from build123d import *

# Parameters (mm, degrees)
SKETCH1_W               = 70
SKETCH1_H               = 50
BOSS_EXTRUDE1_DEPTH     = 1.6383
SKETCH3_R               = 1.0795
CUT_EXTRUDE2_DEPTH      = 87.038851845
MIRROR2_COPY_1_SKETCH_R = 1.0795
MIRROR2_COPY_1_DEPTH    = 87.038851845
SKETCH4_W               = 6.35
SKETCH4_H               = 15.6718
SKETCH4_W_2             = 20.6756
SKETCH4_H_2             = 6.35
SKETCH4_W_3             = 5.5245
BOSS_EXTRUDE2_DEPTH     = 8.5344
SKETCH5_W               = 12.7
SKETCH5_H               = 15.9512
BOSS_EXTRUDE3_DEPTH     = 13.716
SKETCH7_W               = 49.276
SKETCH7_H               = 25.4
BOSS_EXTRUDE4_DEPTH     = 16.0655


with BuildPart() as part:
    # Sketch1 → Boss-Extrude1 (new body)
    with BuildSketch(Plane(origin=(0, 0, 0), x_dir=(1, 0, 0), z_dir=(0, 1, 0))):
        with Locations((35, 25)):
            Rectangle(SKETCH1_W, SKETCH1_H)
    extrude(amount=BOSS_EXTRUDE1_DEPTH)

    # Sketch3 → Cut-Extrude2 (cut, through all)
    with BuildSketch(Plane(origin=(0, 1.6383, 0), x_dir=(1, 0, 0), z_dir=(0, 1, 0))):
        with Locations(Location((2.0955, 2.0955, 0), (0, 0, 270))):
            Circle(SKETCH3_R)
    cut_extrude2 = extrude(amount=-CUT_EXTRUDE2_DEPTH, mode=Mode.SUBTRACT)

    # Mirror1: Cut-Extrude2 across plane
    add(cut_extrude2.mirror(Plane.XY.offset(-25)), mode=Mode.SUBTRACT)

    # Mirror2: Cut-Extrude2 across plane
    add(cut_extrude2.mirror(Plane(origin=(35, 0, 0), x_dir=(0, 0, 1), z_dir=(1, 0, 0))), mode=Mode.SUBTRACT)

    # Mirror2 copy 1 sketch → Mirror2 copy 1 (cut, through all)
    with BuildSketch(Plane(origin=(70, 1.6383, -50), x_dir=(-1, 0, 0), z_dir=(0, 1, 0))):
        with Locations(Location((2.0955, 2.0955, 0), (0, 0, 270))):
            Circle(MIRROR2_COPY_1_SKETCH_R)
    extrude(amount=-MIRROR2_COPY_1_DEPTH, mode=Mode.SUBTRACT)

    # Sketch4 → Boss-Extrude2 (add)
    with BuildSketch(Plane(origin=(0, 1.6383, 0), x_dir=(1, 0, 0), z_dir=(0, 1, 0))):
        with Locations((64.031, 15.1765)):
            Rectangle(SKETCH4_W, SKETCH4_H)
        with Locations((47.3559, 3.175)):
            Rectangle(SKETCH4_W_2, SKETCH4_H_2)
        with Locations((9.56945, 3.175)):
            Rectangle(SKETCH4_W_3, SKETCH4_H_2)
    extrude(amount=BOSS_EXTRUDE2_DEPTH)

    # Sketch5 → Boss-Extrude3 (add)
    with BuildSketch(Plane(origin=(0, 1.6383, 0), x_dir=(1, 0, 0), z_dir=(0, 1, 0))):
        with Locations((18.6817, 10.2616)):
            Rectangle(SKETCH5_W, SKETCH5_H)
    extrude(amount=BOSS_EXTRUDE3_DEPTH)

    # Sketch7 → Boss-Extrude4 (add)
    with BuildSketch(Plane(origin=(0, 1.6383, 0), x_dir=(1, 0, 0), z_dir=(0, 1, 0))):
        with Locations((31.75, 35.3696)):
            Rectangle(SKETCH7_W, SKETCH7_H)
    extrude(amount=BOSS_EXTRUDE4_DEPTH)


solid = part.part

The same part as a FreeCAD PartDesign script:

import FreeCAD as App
import Part
import Sketcher
Q = App.Units.Quantity


def add_polygon(sketch, points):
    """Adds a closed chain of lines whose ends are joined by coincident constraints."""
    first, n = sketch.GeometryCount, len(points)
    for a, b in zip(points, points[1:] + points[:1]):
        sketch.addGeometry(Part.LineSegment(App.Vector(*a, 0), App.Vector(*b, 0)), False)
    for i in range(n):
        sketch.addConstraint(Sketcher.Constraint("Coincident", first + i, 2, first + (i + 1) % n, 1))

doc = App.newDocument("Part")
body = doc.addObject("PartDesign::Body", "Body")

# Sketch on XZ plane
sketch1 = body.newObject("Sketcher::SketchObject", "Sketch")
sketch1.AttachmentSupport = (doc.getObject("XZ_Plane"), [""])
sketch1.MapMode = "FlatFace"
add_polygon(sketch1, [(0, -50), (0, 0), (70, 0), (70, -50)])  # lines 0-3
sketch1.addConstraint([
    Sketcher.Constraint("Vertical", 0),
    Sketcher.Constraint("Horizontal", 1),
    Sketcher.Constraint("Vertical", 2),
    Sketcher.Constraint("Horizontal", 3),
    Sketcher.Constraint("Coincident", 0, 2, -1, 1),
    Sketcher.Constraint("DistanceX", 1, 1, 1, 2, 70.0),
    Sketcher.Constraint("DistanceY", 0, 1, 0, 2, 50.0),
])
pad1 = body.newObject("PartDesign::Pad", "Pad")
pad1.Profile = sketch1
pad1.Length = Q("0.0645 in")
pad1.Reversed = True

# Sketch on XZ plane
sketch2 = body.newObject("Sketcher::SketchObject", "Sketch001")
sketch2.AttachmentSupport = (doc.getObject("XZ_Plane"), [""])
sketch2.MapMode = "FlatFace"
sketch2.AttachmentOffset = App.Placement(App.Vector(0, 0, -0.0645 * 25.4), App.Rotation())
sketch2.addGeometry(Part.Circle(App.Vector(2.1, -2.1, 0), App.Vector(0, 0, 1), 1.1), False)
sketch2.addConstraint([
    Sketcher.Constraint("Diameter", 0, Q("0.085 in")),
    Sketcher.Constraint("DistanceX", -1, 1, 0, 3, Q("0.0825 in")),
    Sketcher.Constraint("DistanceY", 0, 3, -1, 1, Q("0.0825 in")),
])
pocket1 = body.newObject("PartDesign::Pocket", "Pocket")
pocket1.Profile = sketch2
pocket1.Type = "ThroughAll"
pocket1.Reversed = True
doc.recompute()

datumplane = body.newObject("PartDesign::Plane", "DatumPlane")
datumplane.AttachmentSupport = (doc.getObject("XY_Plane"), [""])
datumplane.MapMode = "FlatFace"
datumplane.AttachmentOffset = App.Placement(App.Vector(0, 0, -25), App.Rotation())
mirrored = body.newObject("PartDesign::Mirrored", "Mirrored")
mirrored.Originals = [pocket1]
mirrored.MirrorPlane = (datumplane, [""])
body.Tip = mirrored
doc.recompute()

datumplane2 = body.newObject("PartDesign::Plane", "DatumPlane001")
datumplane2.AttachmentSupport = (doc.getObject("YZ_Plane"), [""])
datumplane2.MapMode = "FlatFace"
datumplane2.AttachmentOffset = App.Placement(App.Vector(0, 0, 35), App.Rotation())
mirrored2 = body.newObject("PartDesign::Mirrored", "Mirrored001")
mirrored2.Originals = [pocket1]
mirrored2.MirrorPlane = (datumplane2, [""])
body.Tip = mirrored2

# Sketch on XZ plane
sketch3 = body.newObject("Sketcher::SketchObject", "Sketch002")
sketch3.AttachmentSupport = (doc.getObject("XZ_Plane"), [""])
sketch3.MapMode = "FlatFace"
sketch3.AttachmentOffset = App.Placement(App.Vector(0, 0, -0.0645 * 25.4), App.Rotation())
sketch3.addGeometry(Part.Circle(App.Vector(67.9, -47.9, 0), App.Vector(0, 0, 1), 1.1), False)
sketch3.addConstraint([
    Sketcher.Constraint("Diameter", 0, Q("0.085 in")),
    Sketcher.Constraint("DistanceX", -1, 1, 0, 3, 67.9045),
    Sketcher.Constraint("DistanceY", 0, 3, -1, 1, 47.9045),
])
pocket2 = body.newObject("PartDesign::Pocket", "Pocket001")
pocket2.Profile = sketch3
pocket2.Type = "ThroughAll"
pocket2.Reversed = True

# Sketch on XZ plane
sketch4 = body.newObject("Sketcher::SketchObject", "Sketch003")
sketch4.AttachmentSupport = (doc.getObject("XZ_Plane"), [""])
sketch4.MapMode = "FlatFace"
sketch4.AttachmentOffset = App.Placement(App.Vector(0, 0, -0.0645 * 25.4), App.Rotation())
add_polygon(sketch4, [(61, -23), (61, -7), (67, -7), (67, -23)])  # lines 0-3
add_polygon(sketch4, [(37, -6), (37, 0), (58, 0), (58, -6)])  # lines 4-7
add_polygon(sketch4, [(7, -6), (7, 0), (12, 0), (12, -6)])  # lines 8-11
sketch4.addConstraint([
    Sketcher.Constraint("Vertical", 0),
    Sketcher.Constraint("Horizontal", 1),
    Sketcher.Constraint("Vertical", 2),
    Sketcher.Constraint("Horizontal", 3),
    Sketcher.Constraint("Vertical", 4),
    Sketcher.Constraint("Horizontal", 5),
    Sketcher.Constraint("Vertical", 6),
    Sketcher.Constraint("Horizontal", 7),
    Sketcher.Constraint("Vertical", 8),
    Sketcher.Constraint("Horizontal", 9),
    Sketcher.Constraint("Vertical", 10),
    Sketcher.Constraint("Horizontal", 11),
    Sketcher.Constraint("PointOnObject", 4, 2, -1),
    Sketcher.Constraint("PointOnObject", 8, 2, -1),
    Sketcher.Constraint("Horizontal", 7, 2, 10, 2),
    Sketcher.Constraint("Equal", 3, 4),
    Sketcher.Constraint("DistanceX", 1, 1, 1, 2, Q("0.25 in")),
    Sketcher.Constraint("DistanceX", 5, 1, 5, 2, Q("0.814 in")),
    Sketcher.Constraint("DistanceY", 0, 1, 0, 2, Q("0.617 in")),
    Sketcher.Constraint("DistanceX", 9, 1, 9, 2, Q("0.2175 in")),
    Sketcher.Constraint("DistanceY", 0, 2, -1, 1, Q("0.289 in")),
    Sketcher.Constraint("DistanceX", -1, 1, 8, 2, Q("0.268 in")),
    Sketcher.Constraint("DistanceX", 4, 2, 0, 2, Q("0.9385 in")),
    Sketcher.Constraint("DistanceX", -1, 1, 0, 2, 60.856),
])
pad2 = body.newObject("PartDesign::Pad", "Pad001")
pad2.Profile = sketch4
pad2.Length = Q("0.336 in")
pad2.Reversed = True

# Sketch on XZ plane
sketch5 = body.newObject("Sketcher::SketchObject", "Sketch004")
sketch5.AttachmentSupport = (doc.getObject("XZ_Plane"), [""])
sketch5.MapMode = "FlatFace"
sketch5.AttachmentOffset = App.Placement(App.Vector(0, 0, -0.0645 * 25.4), App.Rotation())
add_polygon(sketch5, [(12, -18), (12, -2), (25, -2), (25, -18)])  # lines 0-3
sketch5.addConstraint([
    Sketcher.Constraint("Vertical", 0),
    Sketcher.Constraint("Horizontal", 1),
    Sketcher.Constraint("Vertical", 2),
    Sketcher.Constraint("Horizontal", 3),
    Sketcher.Constraint("DistanceX", 1, 1, 1, 2, Q("0.5 in")),
    Sketcher.Constraint("DistanceY", 0, 1, 0, 2, Q("0.628 in")),
    Sketcher.Constraint("DistanceY", 0, 2, -1, 1, Q("0.09 in")),
    Sketcher.Constraint("DistanceX", -1, 1, 0, 2, Q("0.4855 in")),
])
pad3 = body.newObject("PartDesign::Pad", "Pad002")
pad3.Profile = sketch5
pad3.Length = Q("0.54 in")
pad3.Reversed = True

# Sketch on XZ plane
sketch6 = body.newObject("Sketcher::SketchObject", "Sketch005")
sketch6.AttachmentSupport = (doc.getObject("XZ_Plane"), [""])
sketch6.MapMode = "FlatFace"
sketch6.AttachmentOffset = App.Placement(App.Vector(0, 0, -0.0645 * 25.4), App.Rotation())
add_polygon(sketch6, [(7, -48), (7, -23), (56, -23), (56, -48)])  # lines 0-3
sketch6.addConstraint([
    Sketcher.Constraint("Vertical", 0),
    Sketcher.Constraint("Horizontal", 1),
    Sketcher.Constraint("Vertical", 2),
    Sketcher.Constraint("Horizontal", 3),
    Sketcher.Constraint("DistanceY", 0, 1, 0, 2, Q("1 in")),
    Sketcher.Constraint("DistanceX", 1, 1, 1, 2, Q("1.94 in")),
    Sketcher.Constraint("DistanceX", -1, 1, 0, 2, Q("0.28 in")),
    Sketcher.Constraint("DistanceY", 0, 2, -1, 1, 22.6696),
])
pad4 = body.newObject("PartDesign::Pad", "Pad003")
pad4.Profile = sketch6
pad4.Length = Q("0.6325 in")
pad4.Reversed = True

doc.recompute()
